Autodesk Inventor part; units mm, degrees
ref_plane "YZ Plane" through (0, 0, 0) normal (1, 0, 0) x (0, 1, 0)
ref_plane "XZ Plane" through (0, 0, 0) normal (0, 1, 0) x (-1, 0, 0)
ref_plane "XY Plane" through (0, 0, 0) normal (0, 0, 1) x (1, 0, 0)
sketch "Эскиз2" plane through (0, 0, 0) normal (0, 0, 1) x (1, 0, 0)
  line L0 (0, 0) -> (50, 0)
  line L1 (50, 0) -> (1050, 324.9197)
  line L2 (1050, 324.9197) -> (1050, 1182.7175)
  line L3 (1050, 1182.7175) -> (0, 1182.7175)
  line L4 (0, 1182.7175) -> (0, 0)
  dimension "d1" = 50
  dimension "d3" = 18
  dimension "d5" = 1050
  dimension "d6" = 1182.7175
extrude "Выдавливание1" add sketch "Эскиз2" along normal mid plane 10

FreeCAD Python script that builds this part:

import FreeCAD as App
import Part
import Sketcher
from FreeCAD import Vector
Q = App.Units.Quantity


def add_polygon(sketch, points):
    """Adds a closed chain of lines whose ends are joined by coincident constraints."""
    first, n = sketch.GeometryCount, len(points)
    for a, b in zip(points, points[1:] + points[:1]):
        sketch.addGeometry(Part.LineSegment(App.Vector(*a, 0), App.Vector(*b, 0)), False)
    for i in range(n):
        sketch.addConstraint(Sketcher.Constraint("Coincident", first + i, 2, first + (i + 1) % n, 1))

doc = App.newDocument("Part")
body = doc.addObject("PartDesign::Body", "Body")

sketch1 = body.newObject("Sketcher::SketchObject", "Sketch")
sketch1.AttachmentSupport = (doc.getObject("XY_Plane"), [""])
sketch1.MapMode = "FlatFace"
add_polygon(sketch1, [(0, 1183), (0, 0), (50, 0), (1050, 325), (1050, 1183)])
sketch1.addConstraint([
    Sketcher.Constraint("Vertical", 0),
    Sketcher.Constraint("Horizontal", 1),
    Sketcher.Constraint("Vertical", 3),
    Sketcher.Constraint("Horizontal", 4),
    Sketcher.Constraint("Coincident", 0, 2, -1, 1),
    Sketcher.Constraint("DistanceX", 1, 1, 1, 2, Q("50 mm")),
    Sketcher.Constraint("DistanceX", 4, 2, 4, 1, Q("1050 mm")),
    Sketcher.Constraint("Angle", 2, Q("18 deg")),
    Sketcher.Constraint("DistanceY", 0, 2, 0, 1, Q("1182.7175 mm")),
])
pad1 = body.newObject("PartDesign::Pad", "Pad")
pad1.Profile = sketch1
pad1.Length = 10
pad1.Midplane = True

doc.recompute()
